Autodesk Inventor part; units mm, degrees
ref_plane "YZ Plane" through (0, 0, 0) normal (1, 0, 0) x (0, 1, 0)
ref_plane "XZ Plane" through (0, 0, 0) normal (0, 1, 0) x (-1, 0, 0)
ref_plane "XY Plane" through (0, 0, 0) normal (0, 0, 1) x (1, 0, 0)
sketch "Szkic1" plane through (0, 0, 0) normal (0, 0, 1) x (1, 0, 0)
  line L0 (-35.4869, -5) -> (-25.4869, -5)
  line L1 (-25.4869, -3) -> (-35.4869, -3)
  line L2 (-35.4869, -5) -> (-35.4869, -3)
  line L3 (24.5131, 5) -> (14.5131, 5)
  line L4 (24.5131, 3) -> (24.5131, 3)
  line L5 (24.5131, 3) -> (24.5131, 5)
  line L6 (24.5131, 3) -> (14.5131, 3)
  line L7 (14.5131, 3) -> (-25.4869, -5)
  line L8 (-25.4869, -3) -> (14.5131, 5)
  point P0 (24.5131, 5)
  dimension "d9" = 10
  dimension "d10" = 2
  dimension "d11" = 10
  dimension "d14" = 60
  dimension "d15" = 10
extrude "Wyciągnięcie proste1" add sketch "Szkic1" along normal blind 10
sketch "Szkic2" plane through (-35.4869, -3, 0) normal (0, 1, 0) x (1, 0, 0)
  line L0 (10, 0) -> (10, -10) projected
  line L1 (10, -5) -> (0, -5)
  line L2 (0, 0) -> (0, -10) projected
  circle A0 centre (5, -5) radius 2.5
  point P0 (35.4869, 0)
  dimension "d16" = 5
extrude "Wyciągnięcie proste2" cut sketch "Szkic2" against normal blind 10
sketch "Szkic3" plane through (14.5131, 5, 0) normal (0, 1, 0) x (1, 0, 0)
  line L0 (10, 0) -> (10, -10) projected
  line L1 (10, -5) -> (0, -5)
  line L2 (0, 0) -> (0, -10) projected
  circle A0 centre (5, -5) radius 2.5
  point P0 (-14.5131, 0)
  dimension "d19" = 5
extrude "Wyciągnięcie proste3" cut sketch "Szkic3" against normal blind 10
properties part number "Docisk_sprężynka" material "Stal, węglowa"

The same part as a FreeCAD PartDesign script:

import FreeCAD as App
import Part
import Sketcher

V = App.Vector
Q = App.Units.Quantity

doc = App.newDocument("Part")
body = doc.addObject("PartDesign::Body", "Body")

# Sketch on XY plane
sketch1 = body.newObject("Sketcher::SketchObject", "Sketch")
sketch1.AttachmentSupport = (doc.getObject("XY_Plane"), [""])
sketch1.MapMode = "FlatFace"
sketch1.addGeometry(Part.LineSegment(V(-35.4869, -3, 0), V(-35.4869, -5, 0)), False)
sketch1.addGeometry(Part.LineSegment(V(-35.4869, -5, 0), V(-25.4869, -5, 0)), False)
sketch1.addGeometry(Part.LineSegment(V(-25.4869, -5, 0), V(14.5131, 3, 0)), False)
sketch1.addGeometry(Part.LineSegment(V(14.5131, 3, 0), V(24.5131, 3, 0)), False)
sketch1.addGeometry(Part.LineSegment(V(24.5131, 3, 0), V(24.5131, 5, 0)), False)
sketch1.addGeometry(Part.LineSegment(V(24.5131, 5, 0), V(14.5131, 5, 0)), False)
sketch1.addGeometry(Part.LineSegment(V(14.5131, 5, 0), V(-25.4869, -3, 0)), False)
sketch1.addGeometry(Part.LineSegment(V(-25.4869, -3, 0), V(-35.4869, -3, 0)), False)
sketch1.addConstraint(Sketcher.Constraint("Coincident", 0, 2, 1, 1))
sketch1.addConstraint(Sketcher.Constraint("Coincident", 1, 2, 2, 1))
sketch1.addConstraint(Sketcher.Constraint("Coincident", 2, 2, 3, 1))
sketch1.addConstraint(Sketcher.Constraint("Coincident", 3, 2, 4, 1))
sketch1.addConstraint(Sketcher.Constraint("Coincident", 4, 2, 5, 1))
sketch1.addConstraint(Sketcher.Constraint("Coincident", 5, 2, 6, 1))
sketch1.addConstraint(Sketcher.Constraint("Coincident", 6, 2, 7, 1))
sketch1.addConstraint(Sketcher.Constraint("Coincident", 7, 2, 0, 1))
sketch1.addConstraint(Sketcher.Constraint("Vertical", 0))
sketch1.addConstraint(Sketcher.Constraint("Horizontal", 1))
sketch1.addConstraint(Sketcher.Constraint("Horizontal", 3))
sketch1.addConstraint(Sketcher.Constraint("Vertical", 4))
sketch1.addConstraint(Sketcher.Constraint("Horizontal", 5))
sketch1.addConstraint(Sketcher.Constraint("Horizontal", 7))
sketch1.addConstraint(Sketcher.Constraint("Parallel", 2, 6))
sketch1.addConstraint(Sketcher.Constraint("Vertical", 2, 2, 5, 2))
sketch1.addConstraint(Sketcher.Constraint("Vertical", 1, 2, 6, 2))
sketch1.addConstraint(Sketcher.Constraint("Equal", 1, 3))
sketch1.addConstraint(Sketcher.Constraint("DistanceX", 1, 1, 1, 2, Q("10 mm")))
sketch1.addConstraint(Sketcher.Constraint("DistanceY", 0, 2, 0, 1, Q("2 mm")))
sketch1.addConstraint(Sketcher.Constraint("DistanceX", 0, 2, 3, 2, Q("60 mm")))
sketch1.addConstraint(Sketcher.Constraint("DistanceY", 1, 2, 4, 2, Q("10 mm")))
sketch1.addConstraint(Sketcher.Constraint("DistanceY", 0, 2, -1, 1, Q("5 mm")))
sketch1.addConstraint(Sketcher.Constraint("DistanceX", 0, 2, -1, 1, Q("35.487 mm")))
pad1 = body.newObject("PartDesign::Pad", "Pad")
pad1.Profile = sketch1
pad1.Length = 10

# Sketch on XZ plane
sketch2 = body.newObject("Sketcher::SketchObject", "Sketch001")
sketch2.AttachmentSupport = (doc.getObject("XZ_Plane"), [""])
sketch2.MapMode = "FlatFace"
sketch2.AttachmentOffset = App.Placement(V(0, 0, 3), App.Rotation())
sketch2.addGeometry(Part.Circle(V(-30.4869, 5, 0), V(0, 0, 1), 2.5), False)
sketch2.addConstraint(Sketcher.Constraint("Diameter", 0, Q("5 mm")))
sketch2.addConstraint(Sketcher.Constraint("DistanceY", -1, 1, 0, 3, Q("5 mm")))
sketch2.addConstraint(Sketcher.Constraint("DistanceX", 0, 3, -1, 1, Q("30.487 mm")))
pocket1 = body.newObject("PartDesign::Pocket", "Pocket")
pocket1.Profile = sketch2
pocket1.Length = 10
pocket1.Reversed = True

# Sketch on XZ plane
sketch3 = body.newObject("Sketcher::SketchObject", "Sketch002")
sketch3.AttachmentSupport = (doc.getObject("XZ_Plane"), [""])
sketch3.MapMode = "FlatFace"
sketch3.AttachmentOffset = App.Placement(V(0, 0, -5), App.Rotation())
sketch3.addGeometry(Part.Circle(V(19.5131, 5, 0), V(0, 0, 1), 2.5), False)
sketch3.addConstraint(Sketcher.Constraint("Diameter", 0, Q("5 mm")))
sketch3.addConstraint(Sketcher.Constraint("DistanceY", -1, 1, 0, 3, Q("5 mm")))
sketch3.addConstraint(Sketcher.Constraint("DistanceX", -1, 1, 0, 3, Q("19.513 mm")))
pocket2 = body.newObject("PartDesign::Pocket", "Pocket001")
pocket2.Profile = sketch3
pocket2.Length = 10
pocket2.Reversed = True

doc.recompute()
